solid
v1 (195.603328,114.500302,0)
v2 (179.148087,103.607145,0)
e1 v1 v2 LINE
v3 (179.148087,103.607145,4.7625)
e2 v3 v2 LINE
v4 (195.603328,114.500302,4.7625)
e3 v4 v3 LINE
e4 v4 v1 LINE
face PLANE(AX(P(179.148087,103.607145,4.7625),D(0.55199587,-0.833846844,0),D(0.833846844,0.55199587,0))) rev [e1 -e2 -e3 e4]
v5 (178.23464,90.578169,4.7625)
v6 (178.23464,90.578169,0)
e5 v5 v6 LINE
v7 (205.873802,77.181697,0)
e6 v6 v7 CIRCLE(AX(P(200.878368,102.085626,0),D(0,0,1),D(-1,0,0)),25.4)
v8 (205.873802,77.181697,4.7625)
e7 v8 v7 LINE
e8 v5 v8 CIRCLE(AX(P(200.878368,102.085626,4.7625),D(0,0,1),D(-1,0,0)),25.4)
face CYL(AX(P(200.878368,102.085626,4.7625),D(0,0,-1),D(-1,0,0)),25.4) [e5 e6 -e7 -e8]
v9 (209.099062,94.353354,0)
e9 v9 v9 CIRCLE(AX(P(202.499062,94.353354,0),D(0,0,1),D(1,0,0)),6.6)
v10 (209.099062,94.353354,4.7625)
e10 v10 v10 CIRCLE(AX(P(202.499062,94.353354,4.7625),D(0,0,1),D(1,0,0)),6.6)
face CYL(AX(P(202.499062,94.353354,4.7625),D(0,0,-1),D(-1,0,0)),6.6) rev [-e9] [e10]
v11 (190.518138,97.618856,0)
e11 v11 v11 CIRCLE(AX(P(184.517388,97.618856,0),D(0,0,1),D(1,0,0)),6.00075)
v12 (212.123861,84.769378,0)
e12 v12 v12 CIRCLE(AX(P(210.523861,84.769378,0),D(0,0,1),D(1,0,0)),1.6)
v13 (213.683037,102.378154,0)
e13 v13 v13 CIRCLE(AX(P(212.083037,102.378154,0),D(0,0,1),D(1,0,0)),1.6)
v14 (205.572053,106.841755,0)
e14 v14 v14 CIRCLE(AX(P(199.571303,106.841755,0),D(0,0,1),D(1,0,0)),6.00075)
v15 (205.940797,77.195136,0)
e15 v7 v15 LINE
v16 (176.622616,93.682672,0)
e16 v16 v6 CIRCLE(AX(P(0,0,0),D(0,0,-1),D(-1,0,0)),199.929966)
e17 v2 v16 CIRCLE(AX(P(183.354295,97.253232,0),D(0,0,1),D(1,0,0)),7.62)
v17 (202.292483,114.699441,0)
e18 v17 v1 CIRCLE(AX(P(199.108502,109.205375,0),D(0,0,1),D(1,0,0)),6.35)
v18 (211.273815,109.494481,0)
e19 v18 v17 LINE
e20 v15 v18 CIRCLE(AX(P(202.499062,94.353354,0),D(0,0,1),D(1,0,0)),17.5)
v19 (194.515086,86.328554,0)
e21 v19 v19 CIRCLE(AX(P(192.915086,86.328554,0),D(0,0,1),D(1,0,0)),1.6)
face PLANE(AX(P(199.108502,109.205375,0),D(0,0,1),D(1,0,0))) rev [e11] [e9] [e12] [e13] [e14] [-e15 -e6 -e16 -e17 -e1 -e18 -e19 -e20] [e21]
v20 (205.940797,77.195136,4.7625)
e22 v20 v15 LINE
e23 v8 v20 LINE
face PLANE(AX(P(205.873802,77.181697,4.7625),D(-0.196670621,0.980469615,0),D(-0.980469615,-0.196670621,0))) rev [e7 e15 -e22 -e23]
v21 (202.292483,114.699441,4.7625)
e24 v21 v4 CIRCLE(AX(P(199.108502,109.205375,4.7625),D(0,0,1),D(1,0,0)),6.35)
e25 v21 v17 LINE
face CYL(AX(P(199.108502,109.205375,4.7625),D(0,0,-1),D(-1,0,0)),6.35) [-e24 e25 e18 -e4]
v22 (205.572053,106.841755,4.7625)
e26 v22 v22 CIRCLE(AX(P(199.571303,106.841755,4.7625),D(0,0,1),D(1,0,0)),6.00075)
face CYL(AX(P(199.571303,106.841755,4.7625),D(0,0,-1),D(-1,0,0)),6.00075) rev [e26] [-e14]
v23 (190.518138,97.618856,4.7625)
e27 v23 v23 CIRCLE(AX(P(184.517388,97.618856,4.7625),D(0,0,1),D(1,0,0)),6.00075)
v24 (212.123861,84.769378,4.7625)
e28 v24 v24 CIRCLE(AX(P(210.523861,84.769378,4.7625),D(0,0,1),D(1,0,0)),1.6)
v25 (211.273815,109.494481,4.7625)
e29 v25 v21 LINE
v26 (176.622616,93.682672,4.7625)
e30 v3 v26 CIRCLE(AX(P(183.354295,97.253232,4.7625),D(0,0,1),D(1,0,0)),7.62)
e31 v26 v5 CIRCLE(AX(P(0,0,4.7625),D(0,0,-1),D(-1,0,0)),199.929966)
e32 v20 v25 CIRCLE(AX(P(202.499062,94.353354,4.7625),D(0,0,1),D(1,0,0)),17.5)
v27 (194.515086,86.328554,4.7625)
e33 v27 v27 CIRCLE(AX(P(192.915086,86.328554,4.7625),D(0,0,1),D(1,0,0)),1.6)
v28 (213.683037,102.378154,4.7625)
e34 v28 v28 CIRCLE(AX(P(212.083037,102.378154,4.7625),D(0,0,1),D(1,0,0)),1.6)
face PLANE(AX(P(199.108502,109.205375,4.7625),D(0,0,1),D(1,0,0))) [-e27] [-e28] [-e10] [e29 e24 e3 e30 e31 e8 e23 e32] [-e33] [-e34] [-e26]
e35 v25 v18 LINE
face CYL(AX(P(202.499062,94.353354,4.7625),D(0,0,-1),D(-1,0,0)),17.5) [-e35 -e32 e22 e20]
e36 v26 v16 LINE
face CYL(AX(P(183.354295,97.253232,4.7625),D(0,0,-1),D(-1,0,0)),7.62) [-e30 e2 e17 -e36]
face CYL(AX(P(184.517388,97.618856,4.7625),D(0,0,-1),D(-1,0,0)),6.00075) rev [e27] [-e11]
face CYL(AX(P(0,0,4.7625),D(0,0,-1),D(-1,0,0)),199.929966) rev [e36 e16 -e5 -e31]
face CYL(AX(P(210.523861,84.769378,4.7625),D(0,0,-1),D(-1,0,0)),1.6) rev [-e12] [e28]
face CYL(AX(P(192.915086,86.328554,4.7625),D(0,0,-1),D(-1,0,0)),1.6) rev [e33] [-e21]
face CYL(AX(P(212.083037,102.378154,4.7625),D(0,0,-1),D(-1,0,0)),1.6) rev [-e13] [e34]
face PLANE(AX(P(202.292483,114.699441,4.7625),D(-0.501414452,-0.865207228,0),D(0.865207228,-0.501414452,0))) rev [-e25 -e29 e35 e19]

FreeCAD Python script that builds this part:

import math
import FreeCAD as App
import Part
import Sketcher
from FreeCAD import Vector
Q = App.Units.Quantity

doc = App.newDocument("Part")
params = doc.addObject("Spreadsheet::Sheet", "Params")
for row, (alias, value) in enumerate([
    ("sketch1_radius", "1 in"),
    ("sketch1_radius2", "0.3 in"),
    ("sketch1_radius3", "0.25 in"),
    ("pad1_length", "0.1875 in"),
], start=1):
    params.set(f"A{row}", alias)
    params.set(f"B{row}", "=" + value)
    params.setAlias(f"B{row}", alias)

body = doc.addObject("PartDesign::Body", "Body")

sketch1 = body.newObject("Sketcher::SketchObject", "Sketch")
sketch1.AttachmentSupport = (doc.getObject("XY_Plane"), [""])
sketch1.MapMode = "FlatFace"
sketch1.addGeometry([
    Part.LineSegment(Vector(195.603328, 114.500302, 0), Vector(179.148087, 103.607145, 0)),
    Part.ArcOfCircle(Part.Circle(Vector(183.354295, 97.253232, 0), Vector(0, 0, 1), 7.62), math.radians(123.504046), math.radians(207.941995)),
    Part.ArcOfCircle(Part.Circle(Vector(-0.000004, -0.000002, 0), Vector(0, 0, 1), 199.929971), math.radians(26.939505), math.radians(27.941995)),
    Part.ArcOfCircle(Part.Circle(Vector(200.878368, 102.085626, 0), Vector(0, 0, 1), 25.4), math.radians(-153.060495), math.radians(-78.657667)),
    Part.LineSegment(Vector(205.873802, 77.181697, 0), Vector(205.940797, 77.195136, 0)),
    Part.ArcOfCircle(Part.Circle(Vector(202.499062, 94.353354, 0), Vector(0, 0, 1), 17.5), math.radians(-78.657667), math.radians(59.906376)),
    Part.LineSegment(Vector(211.273815, 109.494481, 0), Vector(202.292483, 114.699441, 0)),
    Part.ArcOfCircle(Part.Circle(Vector(199.108502, 109.205375, 0), Vector(0, 0, 1), 6.35), math.radians(59.906376), math.radians(123.504046)),
    Part.Circle(Vector(210.523861, 84.769378, 0), Vector(0, 0, 1), 1.6),
    Part.Circle(Vector(202.499062, 94.353354, 0), Vector(0, 0, 1), 6.6),
    Part.Circle(Vector(192.915086, 86.328554, 0), Vector(0, 0, 1), 1.6),
    Part.Circle(Vector(184.517388, 97.618856, 0), Vector(0, 0, 1), 6.00075),
    Part.Circle(Vector(212.083037, 102.378154, 0), Vector(0, 0, 1), 1.6),
    Part.Circle(Vector(199.571303, 106.841755, 0), Vector(0, 0, 1), 6.00075),
], False)
sketch1.addConstraint([
    Sketcher.Constraint("Tangent", 0, 2, 1, 1),
    Sketcher.Constraint("Tangent", 1, 2, 2, 2),
    Sketcher.Constraint("Tangent", 2, 1, 3, 1),
    Sketcher.Constraint("Tangent", 3, 2, 4, 1),
    Sketcher.Constraint("Tangent", 4, 2, 5, 1),
    Sketcher.Constraint("Tangent", 5, 2, 6, 1),
    Sketcher.Constraint("Tangent", 6, 2, 7, 1),
    Sketcher.Constraint("Tangent", 7, 2, 0, 1),
    Sketcher.Constraint("Coincident", 2, 3, -1, 1),
    Sketcher.Constraint("Coincident", 9, 3, 5, 3),
    Sketcher.Constraint("Equal", 8, 10),
    Sketcher.Constraint("Equal", 10, 12),
    Sketcher.Constraint("Equal", 11, 13),
    Sketcher.Constraint("Radius", 3, Q("1 in")),
    Sketcher.Constraint("Radius", 1, Q("0.3 in")),
    Sketcher.Constraint("Radius", 7, Q("0.25 in")),
    Sketcher.Constraint("Diameter", 11, Q("0.4725 in")),
    Sketcher.Constraint("Diameter", 8, Q("3.2 mm")),
    Sketcher.Constraint("Diameter", 9, Q("13.2 mm")),
    Sketcher.Constraint("Radius", 5, Q("17.5 mm")),
    Sketcher.Constraint("Radius", 2, Q("199.929971 mm")),
    Sketcher.Constraint("DistanceY", 10, 3, 11, 3, Q("0.4445001 in")),
    Sketcher.Constraint("DistanceX", -1, 1, 7, 3, Q("199.108502 mm")),
    Sketcher.Constraint("DistanceX", 2, 3, 1, 3, Q("183.354299 mm")),
    Sketcher.Constraint("DistanceX", 5, 3, 8, 3, Q("8.0248 mm")),
    Sketcher.Constraint("DistanceY", 10, 3, 9, 3, Q("8.0248 mm")),
    Sketcher.Constraint("DistanceY", 5, 3, 12, 3, Q("8.0248 mm")),
    Sketcher.Constraint("DistanceX", 7, 3, 13, 3, Q("0.462801 mm")),
    Sketcher.Constraint("DistanceY", 9, 3, 13, 3, Q("12.488401 mm")),
    Sketcher.Constraint("DistanceX", 0, 2, 11, 3, Q("5.369301 mm")),
    Sketcher.Constraint("Distance", 0, Q("19.734129 mm")),
    Sketcher.Constraint("Distance", 4, Q("0.06833 mm")),
    Sketcher.Constraint("DistanceX", -1, 1, 3, 3, Q("200.878368 mm")),
    Sketcher.Constraint("DistanceX", -1, 1, 5, 3, Q("202.499062 mm")),
    Sketcher.Constraint("DistanceY", -1, 1, 8, 3, Q("84.769378 mm")),
    Sketcher.Constraint("DistanceX", 1, 3, 10, 3, Q("9.560791 mm")),
    Sketcher.Constraint("DistanceX", 3, 3, 12, 3, Q("11.204669 mm")),
])
sketch1.setExpression("Constraints[13]", "Params.sketch1_radius")
sketch1.setExpression("Constraints[14]", "Params.sketch1_radius2")
sketch1.setExpression("Constraints[15]", "Params.sketch1_radius3")
pad1 = body.newObject("PartDesign::Pad", "Pad")
pad1.Profile = sketch1
pad1.setExpression("Length", "Params.pad1_length")

doc.recompute()
